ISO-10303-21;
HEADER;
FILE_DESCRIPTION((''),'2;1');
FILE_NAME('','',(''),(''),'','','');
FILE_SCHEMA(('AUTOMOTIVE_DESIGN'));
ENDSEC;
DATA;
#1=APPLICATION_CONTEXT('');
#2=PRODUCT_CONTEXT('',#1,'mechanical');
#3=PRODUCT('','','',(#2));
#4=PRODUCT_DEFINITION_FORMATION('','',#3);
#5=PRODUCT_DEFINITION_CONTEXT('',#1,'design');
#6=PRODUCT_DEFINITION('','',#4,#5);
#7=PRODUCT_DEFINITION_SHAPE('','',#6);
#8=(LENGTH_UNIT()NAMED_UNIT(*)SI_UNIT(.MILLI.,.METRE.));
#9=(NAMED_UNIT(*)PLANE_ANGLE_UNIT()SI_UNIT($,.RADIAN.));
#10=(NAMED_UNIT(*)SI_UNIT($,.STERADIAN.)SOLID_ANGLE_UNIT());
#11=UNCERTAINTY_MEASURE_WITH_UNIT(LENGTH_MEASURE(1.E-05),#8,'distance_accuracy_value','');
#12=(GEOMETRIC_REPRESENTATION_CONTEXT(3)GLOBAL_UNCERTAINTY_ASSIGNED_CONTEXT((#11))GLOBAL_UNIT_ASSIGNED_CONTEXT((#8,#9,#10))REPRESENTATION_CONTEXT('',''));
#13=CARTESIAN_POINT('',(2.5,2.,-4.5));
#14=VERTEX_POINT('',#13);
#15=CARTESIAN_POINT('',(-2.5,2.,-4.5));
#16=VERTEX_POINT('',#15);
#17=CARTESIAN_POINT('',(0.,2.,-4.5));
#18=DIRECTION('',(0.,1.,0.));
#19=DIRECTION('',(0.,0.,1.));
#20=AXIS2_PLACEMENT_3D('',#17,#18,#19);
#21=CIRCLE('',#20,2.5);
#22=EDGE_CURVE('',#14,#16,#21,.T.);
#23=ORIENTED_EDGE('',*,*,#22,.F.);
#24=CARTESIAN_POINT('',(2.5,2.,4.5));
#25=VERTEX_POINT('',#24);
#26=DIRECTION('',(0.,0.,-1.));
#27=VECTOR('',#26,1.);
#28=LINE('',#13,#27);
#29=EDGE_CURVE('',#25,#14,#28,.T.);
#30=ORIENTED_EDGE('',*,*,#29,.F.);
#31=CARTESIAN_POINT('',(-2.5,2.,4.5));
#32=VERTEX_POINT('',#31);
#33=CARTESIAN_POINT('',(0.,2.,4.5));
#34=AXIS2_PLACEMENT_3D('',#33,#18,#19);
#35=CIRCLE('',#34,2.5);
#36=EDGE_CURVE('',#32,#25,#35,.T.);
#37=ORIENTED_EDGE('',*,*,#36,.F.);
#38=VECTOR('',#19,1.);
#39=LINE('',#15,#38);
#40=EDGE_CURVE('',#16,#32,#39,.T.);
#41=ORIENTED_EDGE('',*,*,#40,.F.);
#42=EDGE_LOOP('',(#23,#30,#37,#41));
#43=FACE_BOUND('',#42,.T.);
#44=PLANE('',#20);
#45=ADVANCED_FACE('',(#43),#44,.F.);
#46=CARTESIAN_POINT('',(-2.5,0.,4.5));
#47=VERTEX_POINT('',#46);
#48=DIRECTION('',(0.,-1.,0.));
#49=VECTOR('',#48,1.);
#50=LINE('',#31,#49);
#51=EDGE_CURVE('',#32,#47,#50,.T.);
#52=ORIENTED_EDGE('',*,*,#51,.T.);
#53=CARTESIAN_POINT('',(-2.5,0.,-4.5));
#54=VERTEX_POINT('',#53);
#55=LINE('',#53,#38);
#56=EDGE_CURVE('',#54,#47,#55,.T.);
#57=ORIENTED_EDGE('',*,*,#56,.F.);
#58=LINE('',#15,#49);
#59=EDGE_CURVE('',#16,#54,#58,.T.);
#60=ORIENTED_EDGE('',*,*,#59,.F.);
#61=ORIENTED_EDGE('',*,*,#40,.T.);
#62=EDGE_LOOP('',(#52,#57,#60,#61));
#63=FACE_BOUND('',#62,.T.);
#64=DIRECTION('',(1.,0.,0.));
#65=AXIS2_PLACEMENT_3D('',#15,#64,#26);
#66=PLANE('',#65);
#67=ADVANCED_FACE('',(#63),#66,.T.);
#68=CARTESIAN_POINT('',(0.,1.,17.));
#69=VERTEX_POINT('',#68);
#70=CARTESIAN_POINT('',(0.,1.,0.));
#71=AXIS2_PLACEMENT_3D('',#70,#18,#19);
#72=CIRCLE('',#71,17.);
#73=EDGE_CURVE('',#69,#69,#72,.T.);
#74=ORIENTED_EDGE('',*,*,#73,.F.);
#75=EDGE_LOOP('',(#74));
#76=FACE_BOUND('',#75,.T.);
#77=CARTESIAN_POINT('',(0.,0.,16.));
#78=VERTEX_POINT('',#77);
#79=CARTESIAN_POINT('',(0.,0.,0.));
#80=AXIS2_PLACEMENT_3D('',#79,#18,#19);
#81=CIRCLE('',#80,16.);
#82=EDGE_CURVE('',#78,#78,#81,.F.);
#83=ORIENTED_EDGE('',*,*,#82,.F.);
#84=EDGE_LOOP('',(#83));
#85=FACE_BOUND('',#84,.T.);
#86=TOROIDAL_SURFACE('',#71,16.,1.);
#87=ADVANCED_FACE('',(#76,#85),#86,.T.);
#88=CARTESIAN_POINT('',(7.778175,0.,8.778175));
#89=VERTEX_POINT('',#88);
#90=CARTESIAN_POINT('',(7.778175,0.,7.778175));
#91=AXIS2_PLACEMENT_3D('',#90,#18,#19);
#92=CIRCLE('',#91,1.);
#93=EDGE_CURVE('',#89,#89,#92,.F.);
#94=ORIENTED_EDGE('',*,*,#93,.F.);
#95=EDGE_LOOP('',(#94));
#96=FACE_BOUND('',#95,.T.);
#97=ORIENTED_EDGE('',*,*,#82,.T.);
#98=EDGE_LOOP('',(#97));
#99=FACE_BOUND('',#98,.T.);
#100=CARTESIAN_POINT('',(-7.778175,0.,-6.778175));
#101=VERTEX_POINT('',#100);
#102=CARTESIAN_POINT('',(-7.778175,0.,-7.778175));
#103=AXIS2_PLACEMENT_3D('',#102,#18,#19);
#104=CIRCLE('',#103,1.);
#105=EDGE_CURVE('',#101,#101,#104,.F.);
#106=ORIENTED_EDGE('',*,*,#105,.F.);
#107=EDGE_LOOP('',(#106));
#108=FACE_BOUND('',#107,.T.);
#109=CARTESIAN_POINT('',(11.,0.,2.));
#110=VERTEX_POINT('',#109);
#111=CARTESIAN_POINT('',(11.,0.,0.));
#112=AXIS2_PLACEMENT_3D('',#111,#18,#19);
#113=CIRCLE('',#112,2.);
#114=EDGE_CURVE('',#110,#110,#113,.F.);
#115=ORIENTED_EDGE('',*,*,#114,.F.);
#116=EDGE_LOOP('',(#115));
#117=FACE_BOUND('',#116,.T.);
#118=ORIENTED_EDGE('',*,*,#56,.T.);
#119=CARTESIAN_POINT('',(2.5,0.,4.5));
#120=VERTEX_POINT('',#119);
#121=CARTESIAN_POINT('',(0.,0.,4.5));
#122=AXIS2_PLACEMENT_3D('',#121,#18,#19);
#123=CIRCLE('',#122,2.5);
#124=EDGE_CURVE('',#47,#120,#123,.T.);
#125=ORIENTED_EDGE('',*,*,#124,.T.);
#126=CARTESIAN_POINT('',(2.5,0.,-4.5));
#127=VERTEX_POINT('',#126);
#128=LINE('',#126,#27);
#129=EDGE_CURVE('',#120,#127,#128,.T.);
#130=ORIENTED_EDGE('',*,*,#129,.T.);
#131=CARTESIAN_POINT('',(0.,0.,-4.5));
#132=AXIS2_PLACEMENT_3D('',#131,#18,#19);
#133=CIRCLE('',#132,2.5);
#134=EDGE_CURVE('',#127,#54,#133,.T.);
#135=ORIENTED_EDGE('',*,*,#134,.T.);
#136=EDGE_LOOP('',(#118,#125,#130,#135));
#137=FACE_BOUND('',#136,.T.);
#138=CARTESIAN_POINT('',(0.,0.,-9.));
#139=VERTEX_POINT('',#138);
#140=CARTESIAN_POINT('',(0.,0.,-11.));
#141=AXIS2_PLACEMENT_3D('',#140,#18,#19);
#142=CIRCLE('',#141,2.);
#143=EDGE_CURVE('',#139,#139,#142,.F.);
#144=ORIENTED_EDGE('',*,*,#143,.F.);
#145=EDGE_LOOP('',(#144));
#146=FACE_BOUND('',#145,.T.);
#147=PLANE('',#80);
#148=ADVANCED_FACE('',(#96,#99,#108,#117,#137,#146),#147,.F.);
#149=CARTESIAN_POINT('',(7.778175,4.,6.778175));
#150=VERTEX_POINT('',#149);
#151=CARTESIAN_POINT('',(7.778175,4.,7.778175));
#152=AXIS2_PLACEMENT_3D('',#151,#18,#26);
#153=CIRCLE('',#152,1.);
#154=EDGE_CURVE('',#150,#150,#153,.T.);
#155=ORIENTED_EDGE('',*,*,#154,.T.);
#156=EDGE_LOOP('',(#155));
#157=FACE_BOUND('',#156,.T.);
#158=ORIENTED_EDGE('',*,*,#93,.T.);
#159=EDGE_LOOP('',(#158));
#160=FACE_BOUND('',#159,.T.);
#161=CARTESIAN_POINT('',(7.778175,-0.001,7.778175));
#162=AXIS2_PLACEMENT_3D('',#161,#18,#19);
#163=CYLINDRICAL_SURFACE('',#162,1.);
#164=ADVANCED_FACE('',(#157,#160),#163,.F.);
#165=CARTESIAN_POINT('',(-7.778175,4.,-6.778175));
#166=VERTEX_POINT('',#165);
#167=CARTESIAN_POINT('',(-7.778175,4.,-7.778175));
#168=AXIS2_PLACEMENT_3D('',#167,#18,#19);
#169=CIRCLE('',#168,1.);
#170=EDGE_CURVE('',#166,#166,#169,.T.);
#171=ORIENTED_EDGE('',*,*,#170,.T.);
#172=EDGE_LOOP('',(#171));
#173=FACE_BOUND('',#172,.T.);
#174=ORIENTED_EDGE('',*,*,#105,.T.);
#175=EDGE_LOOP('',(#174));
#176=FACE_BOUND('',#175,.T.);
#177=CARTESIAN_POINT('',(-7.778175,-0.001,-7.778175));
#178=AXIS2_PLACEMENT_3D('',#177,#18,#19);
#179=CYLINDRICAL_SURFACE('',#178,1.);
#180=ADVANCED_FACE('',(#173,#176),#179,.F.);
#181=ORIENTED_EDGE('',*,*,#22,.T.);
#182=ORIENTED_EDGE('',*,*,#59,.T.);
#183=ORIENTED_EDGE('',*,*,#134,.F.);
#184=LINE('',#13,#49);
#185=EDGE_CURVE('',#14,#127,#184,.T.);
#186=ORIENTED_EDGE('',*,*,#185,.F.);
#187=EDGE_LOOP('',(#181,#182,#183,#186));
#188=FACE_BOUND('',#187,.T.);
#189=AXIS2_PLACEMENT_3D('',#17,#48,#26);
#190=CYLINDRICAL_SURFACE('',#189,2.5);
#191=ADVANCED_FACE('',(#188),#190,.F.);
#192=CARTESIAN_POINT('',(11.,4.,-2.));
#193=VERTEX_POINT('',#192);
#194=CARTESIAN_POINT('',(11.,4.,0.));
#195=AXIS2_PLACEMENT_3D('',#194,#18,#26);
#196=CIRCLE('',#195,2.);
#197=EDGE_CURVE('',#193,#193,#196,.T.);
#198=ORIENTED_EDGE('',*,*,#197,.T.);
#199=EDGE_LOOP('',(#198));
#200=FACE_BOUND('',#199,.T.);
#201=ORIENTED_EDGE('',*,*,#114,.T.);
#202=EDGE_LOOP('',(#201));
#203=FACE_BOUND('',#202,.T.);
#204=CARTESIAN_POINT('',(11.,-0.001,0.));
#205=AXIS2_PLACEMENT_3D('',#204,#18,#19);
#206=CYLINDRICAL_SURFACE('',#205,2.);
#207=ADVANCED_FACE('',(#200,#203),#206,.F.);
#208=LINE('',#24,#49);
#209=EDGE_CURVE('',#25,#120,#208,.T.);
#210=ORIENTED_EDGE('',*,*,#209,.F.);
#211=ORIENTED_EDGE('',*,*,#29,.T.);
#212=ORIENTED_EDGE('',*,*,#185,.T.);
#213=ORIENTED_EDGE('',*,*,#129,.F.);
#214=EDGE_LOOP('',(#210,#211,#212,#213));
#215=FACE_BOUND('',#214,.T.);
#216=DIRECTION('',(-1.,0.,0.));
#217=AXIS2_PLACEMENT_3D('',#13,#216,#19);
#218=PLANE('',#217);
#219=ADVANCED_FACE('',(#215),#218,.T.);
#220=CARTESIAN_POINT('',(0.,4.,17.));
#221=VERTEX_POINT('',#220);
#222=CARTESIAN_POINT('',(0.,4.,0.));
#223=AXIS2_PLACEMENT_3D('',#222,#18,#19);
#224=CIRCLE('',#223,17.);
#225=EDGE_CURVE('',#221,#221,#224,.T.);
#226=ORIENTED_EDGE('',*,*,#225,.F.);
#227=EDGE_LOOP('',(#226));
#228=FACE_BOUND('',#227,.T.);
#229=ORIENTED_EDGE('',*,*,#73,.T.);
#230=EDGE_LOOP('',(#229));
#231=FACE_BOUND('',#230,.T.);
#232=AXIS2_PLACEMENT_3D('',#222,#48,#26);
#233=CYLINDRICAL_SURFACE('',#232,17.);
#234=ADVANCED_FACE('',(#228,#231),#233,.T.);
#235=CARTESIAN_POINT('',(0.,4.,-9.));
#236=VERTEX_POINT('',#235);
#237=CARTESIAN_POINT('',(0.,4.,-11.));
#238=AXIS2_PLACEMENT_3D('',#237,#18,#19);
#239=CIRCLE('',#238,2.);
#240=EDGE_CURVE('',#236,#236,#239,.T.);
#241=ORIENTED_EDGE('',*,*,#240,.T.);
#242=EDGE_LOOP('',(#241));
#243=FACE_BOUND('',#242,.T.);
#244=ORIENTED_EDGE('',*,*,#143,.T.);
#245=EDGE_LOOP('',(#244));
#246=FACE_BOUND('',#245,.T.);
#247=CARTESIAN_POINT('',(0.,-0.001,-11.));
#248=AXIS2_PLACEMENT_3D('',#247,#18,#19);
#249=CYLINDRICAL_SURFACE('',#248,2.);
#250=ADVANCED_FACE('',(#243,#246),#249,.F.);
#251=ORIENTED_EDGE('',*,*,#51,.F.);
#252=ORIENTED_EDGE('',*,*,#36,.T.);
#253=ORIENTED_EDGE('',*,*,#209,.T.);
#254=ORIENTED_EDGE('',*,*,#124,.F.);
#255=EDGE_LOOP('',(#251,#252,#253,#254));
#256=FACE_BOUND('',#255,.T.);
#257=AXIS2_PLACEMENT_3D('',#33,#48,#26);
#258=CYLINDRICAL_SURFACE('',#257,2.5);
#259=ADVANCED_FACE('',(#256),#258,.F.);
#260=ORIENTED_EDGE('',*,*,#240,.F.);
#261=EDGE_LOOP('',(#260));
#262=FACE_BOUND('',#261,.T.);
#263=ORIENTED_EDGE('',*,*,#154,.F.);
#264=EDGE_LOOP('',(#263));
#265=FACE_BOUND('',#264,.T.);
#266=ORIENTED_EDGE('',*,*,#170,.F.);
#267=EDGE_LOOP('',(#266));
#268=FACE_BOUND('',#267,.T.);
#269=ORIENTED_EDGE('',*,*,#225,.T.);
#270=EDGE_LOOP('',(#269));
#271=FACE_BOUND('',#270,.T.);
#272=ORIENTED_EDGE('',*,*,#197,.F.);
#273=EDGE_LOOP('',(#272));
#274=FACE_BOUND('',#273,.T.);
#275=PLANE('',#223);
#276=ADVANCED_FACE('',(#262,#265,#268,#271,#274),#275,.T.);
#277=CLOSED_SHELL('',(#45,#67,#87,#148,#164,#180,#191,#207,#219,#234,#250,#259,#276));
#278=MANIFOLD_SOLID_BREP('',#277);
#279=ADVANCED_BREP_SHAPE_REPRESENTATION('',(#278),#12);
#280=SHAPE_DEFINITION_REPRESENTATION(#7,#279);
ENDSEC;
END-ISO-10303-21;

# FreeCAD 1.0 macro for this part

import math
import FreeCAD as App
import Part
import Sketcher

V = App.Vector
Q = App.Units.Quantity


def edges_at(feature, points):
    """Names of the edges that pass closest to the given points."""
    edges = feature.Shape.Edges
    near = lambda p: min(range(len(edges)), key=lambda i: edges[i].distToShape(Part.Vertex(*p))[0])
    return sorted({f"Edge{near(p) + 1}" for p in points})

doc = App.newDocument("Part")
body = doc.addObject("PartDesign::Body", "Body")

sketch1 = body.newObject("Sketcher::SketchObject", "Sketch")
sketch1.AttachmentSupport = (doc.getObject("XZ_Plane"), [""])
sketch1.MapMode = "FlatFace"
sketch1.addGeometry(Part.Circle(V(0, 0, 0), V(0, 0, 1), 17), False)
sketch1.addConstraint([
    Sketcher.Constraint("Coincident", 0, 3, -1, 1),
    Sketcher.Constraint("Diameter", 0, Q("34 mm")),
])
pad1 = body.newObject("PartDesign::Pad", "Pad")
pad1.Profile = sketch1
pad1.Length = 4
pad1.Reversed = True

sketch2 = body.newObject("Sketcher::SketchObject", "Sketch001")
sketch2.AttachmentSupport = (doc.getObject("XZ_Plane"), [""])
sketch2.MapMode = "FlatFace"
sketch2.addGeometry([
    Part.LineSegment(V(2.5, 4.5, 0), V(2.5, -4.5, 0)),
    Part.ArcOfCircle(Part.Circle(V(0, -4.5, 0), V(0, 0, 1), 2.5), math.radians(180), math.radians(360)),
    Part.LineSegment(V(-2.5, -4.5, 0), V(-2.5, 4.5, 0)),
    Part.ArcOfCircle(Part.Circle(V(0, 4.5, 0), V(0, 0, 1), 2.5), math.radians(0), math.radians(180)),
], False)
sketch2.addConstraint([
    Sketcher.Constraint("Tangent", 0, 2, 1, 2),
    Sketcher.Constraint("Tangent", 1, 1, 2, 1),
    Sketcher.Constraint("Tangent", 2, 2, 3, 2),
    Sketcher.Constraint("Tangent", 3, 1, 0, 1),
    Sketcher.Constraint("Vertical", 0),
    Sketcher.Constraint("Vertical", 2),
    Sketcher.Constraint("Symmetric", 1, 3, 3, 3, -1, 1),
    Sketcher.Constraint("Radius", 1, Q("2.5 mm")),
    Sketcher.Constraint("DistanceY", 0, 2, 0, 1, Q("9 mm")),
])
pocket1 = body.newObject("PartDesign::Pocket", "Pocket")
pocket1.Profile = sketch2
pocket1.Length = 2

sketch3 = body.newObject("Sketcher::SketchObject", "Sketch002")
sketch3.AttachmentSupport = (doc.getObject("XZ_Plane"), [""])
sketch3.MapMode = "FlatFace"
sketch3.AttachmentOffset = App.Placement(V(0, 0, -4), App.Rotation())
sketch3.addGeometry(Part.Circle(V(0, -11, 0), V(0, 0, 1), 2), False)
sketch3.addConstraint([
    Sketcher.Constraint("PointOnObject", 0, 3, -2),
    Sketcher.Constraint("Diameter", 0, Q("4 mm")),
    Sketcher.Constraint("DistanceY", 0, 3, -1, 1, Q("11 mm")),
])
pocket2 = body.newObject("PartDesign::Pocket", "Pocket001")
pocket2.Profile = sketch3
pocket2.Type = "UpToFirst"
pocket2.Reversed = True

sketch4 = body.newObject("Sketcher::SketchObject", "Sketch003")
sketch4.AttachmentSupport = (doc.getObject("XZ_Plane"), [""])
sketch4.MapMode = "FlatFace"
sketch4.AttachmentOffset = App.Placement(V(0, 0, -4), App.Rotation())
sketch4.addGeometry(Part.Circle(V(-7.8, -7.8, 0), V(0, 0, 1), 1), False)
sketch4.addConstraint([
    Sketcher.Constraint("Diameter", 0, Q("2 mm")),
    Sketcher.Constraint("DistanceX", 0, 3, -1, 1, Q("7.778175 mm")),
    Sketcher.Constraint("DistanceY", 0, 3, -1, 1, Q("7.778175 mm")),
])
pocket3 = body.newObject("PartDesign::Pocket", "Pocket002")
pocket3.Profile = sketch4
pocket3.Type = "UpToFirst"
pocket3.Reversed = True

sketch5 = body.newObject("Sketcher::SketchObject", "Sketch004")
sketch5.AttachmentSupport = (doc.getObject("XZ_Plane"), [""])
sketch5.MapMode = "FlatFace"
sketch5.AttachmentOffset = App.Placement(V(0, 0, -4), App.Rotation())
sketch5.addGeometry(Part.Circle(V(11, 0, 0), V(0, 0, 1), 2), False)
sketch5.addConstraint([
    Sketcher.Constraint("PointOnObject", 0, 3, -1),
    Sketcher.Constraint("Diameter", 0, Q("4 mm")),
    Sketcher.Constraint("DistanceX", -1, 1, 0, 3, Q("11 mm")),
])
pocket4 = body.newObject("PartDesign::Pocket", "Pocket003")
pocket4.Profile = sketch5
pocket4.Type = "UpToFirst"
pocket4.Reversed = True

sketch6 = body.newObject("Sketcher::SketchObject", "Sketch005")
sketch6.AttachmentSupport = (doc.getObject("XZ_Plane"), [""])
sketch6.MapMode = "FlatFace"
sketch6.AttachmentOffset = App.Placement(V(0, 0, -4), App.Rotation())
sketch6.addGeometry(Part.Circle(V(7.8, 7.8, 0), V(0, 0, 1), 1), False)
sketch6.addConstraint([
    Sketcher.Constraint("Diameter", 0, Q("2 mm")),
    Sketcher.Constraint("DistanceX", -1, 1, 0, 3, Q("7.778175 mm")),
    Sketcher.Constraint("DistanceY", -1, 1, 0, 3, Q("7.778175 mm")),
])
pocket5 = body.newObject("PartDesign::Pocket", "Pocket004")
pocket5.Profile = sketch6
pocket5.Type = "UpToFirst"
pocket5.Reversed = True
doc.recompute()

fillet = body.newObject("PartDesign::Fillet", "Fillet")
fillet.Base = (pocket5, edges_at(pocket5, [(0, 0, -17)]))
fillet.Radius = 1

doc.recompute()
